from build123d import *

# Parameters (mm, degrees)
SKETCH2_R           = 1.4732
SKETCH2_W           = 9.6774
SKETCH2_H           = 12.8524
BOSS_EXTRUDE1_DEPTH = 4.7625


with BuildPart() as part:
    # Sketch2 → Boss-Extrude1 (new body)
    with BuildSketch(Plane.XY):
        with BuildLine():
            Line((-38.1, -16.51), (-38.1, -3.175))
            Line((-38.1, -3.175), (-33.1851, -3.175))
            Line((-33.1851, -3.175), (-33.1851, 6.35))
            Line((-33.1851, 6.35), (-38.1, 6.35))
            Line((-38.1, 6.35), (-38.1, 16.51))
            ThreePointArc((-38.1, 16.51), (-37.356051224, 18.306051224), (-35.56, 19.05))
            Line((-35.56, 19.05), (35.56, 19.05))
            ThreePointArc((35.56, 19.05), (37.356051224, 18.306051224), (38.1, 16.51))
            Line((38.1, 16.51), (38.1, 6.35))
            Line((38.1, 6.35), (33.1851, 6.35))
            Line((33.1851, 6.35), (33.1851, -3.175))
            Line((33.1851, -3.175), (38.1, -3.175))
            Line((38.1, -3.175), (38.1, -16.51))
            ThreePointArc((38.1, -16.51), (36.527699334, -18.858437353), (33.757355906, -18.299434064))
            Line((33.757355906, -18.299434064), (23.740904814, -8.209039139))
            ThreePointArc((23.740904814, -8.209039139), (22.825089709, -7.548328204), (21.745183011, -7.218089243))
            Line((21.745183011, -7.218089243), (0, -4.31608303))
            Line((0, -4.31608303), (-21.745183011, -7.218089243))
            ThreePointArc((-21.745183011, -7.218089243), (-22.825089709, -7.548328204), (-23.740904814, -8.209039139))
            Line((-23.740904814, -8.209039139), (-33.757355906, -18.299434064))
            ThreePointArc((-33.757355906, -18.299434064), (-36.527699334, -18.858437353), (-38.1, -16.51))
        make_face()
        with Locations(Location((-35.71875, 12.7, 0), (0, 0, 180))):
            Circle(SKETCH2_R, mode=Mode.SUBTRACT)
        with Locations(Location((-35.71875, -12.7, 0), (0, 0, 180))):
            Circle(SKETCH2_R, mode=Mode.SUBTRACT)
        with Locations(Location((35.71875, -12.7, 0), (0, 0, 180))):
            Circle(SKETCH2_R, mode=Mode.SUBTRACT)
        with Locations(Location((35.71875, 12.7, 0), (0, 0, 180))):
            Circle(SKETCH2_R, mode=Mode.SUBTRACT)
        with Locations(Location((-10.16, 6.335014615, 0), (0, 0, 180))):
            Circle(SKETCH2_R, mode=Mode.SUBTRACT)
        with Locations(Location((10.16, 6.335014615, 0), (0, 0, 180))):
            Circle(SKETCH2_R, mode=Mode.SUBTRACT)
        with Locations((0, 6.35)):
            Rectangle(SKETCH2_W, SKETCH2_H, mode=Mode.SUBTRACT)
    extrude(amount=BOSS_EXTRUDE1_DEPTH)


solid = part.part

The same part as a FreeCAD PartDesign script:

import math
import FreeCAD as App
import Part
import Sketcher
Q = App.Units.Quantity

doc = App.newDocument("Part")
body = doc.addObject("PartDesign::Body", "Body")

sketch1 = doc.addObject("Sketcher::SketchObject", "Sketch")
body.addObject(sketch1)
sketch1.AttachmentSupport = (doc.XY_Plane, [""])
sketch1.MapMode = "FlatFace"
sketch1.addGeometry(Part.LineSegment(App.Vector(-38.1, -3.2, 0), App.Vector(-38.1, -16.5, 0)), False)
sketch1.addGeometry(Part.ArcOfCircle(Part.Circle(App.Vector(-35.6, -16.5, 0), App.Vector(0, 0, 1), 2.5), math.radians(180), math.radians(315)), False)
sketch1.addGeometry(Part.LineSegment(App.Vector(-33.8, -18.3, 0), App.Vector(-23.7, -8.2, 0)), False)
sketch1.addGeometry(Part.ArcOfCircle(Part.Circle(App.Vector(-21.3, -10.6, 0), App.Vector(0, 0, 1), 3.5), math.radians(98), math.radians(135)), False)
sketch1.addGeometry(Part.LineSegment(App.Vector(-21.7, -7.2, 0), App.Vector(0, -4.3, 0)), False)
sketch1.addGeometry(Part.LineSegment(App.Vector(0, -4.3, 0), App.Vector(21.7, -7.2, 0)), False)
sketch1.addGeometry(Part.ArcOfCircle(Part.Circle(App.Vector(21.3, -10.6, 0), App.Vector(0, 0, 1), 3.5), math.radians(45), math.radians(82)), False)
sketch1.addGeometry(Part.LineSegment(App.Vector(23.7, -8.2, 0), App.Vector(33.8, -18.3, 0)), False)
sketch1.addGeometry(Part.ArcOfCircle(Part.Circle(App.Vector(35.6, -16.5, 0), App.Vector(0, 0, 1), 2.5), math.radians(-135), math.radians(0)), False)
sketch1.addGeometry(Part.LineSegment(App.Vector(38.1, -16.5, 0), App.Vector(38.1, -3.2, 0)), False)
sketch1.addGeometry(Part.LineSegment(App.Vector(38.1, -3.2, 0), App.Vector(33.2, -3.2, 0)), False)
sketch1.addGeometry(Part.LineSegment(App.Vector(33.2, -3.2, 0), App.Vector(33.2, 6.3, 0)), False)
sketch1.addGeometry(Part.LineSegment(App.Vector(33.2, 6.3, 0), App.Vector(38.1, 6.3, 0)), False)
sketch1.addGeometry(Part.LineSegment(App.Vector(38.1, 6.3, 0), App.Vector(38.1, 16.5, 0)), False)
sketch1.addGeometry(Part.ArcOfCircle(Part.Circle(App.Vector(35.6, 16.5, 0), App.Vector(0, 0, 1), 2.5), math.radians(0), math.radians(90)), False)
sketch1.addGeometry(Part.LineSegment(App.Vector(35.6, 19.1, 0), App.Vector(-35.6, 19.1, 0)), False)
sketch1.addGeometry(Part.ArcOfCircle(Part.Circle(App.Vector(-35.6, 16.5, 0), App.Vector(0, 0, 1), 2.5), math.radians(90), math.radians(180)), False)
sketch1.addGeometry(Part.LineSegment(App.Vector(-38.1, 16.5, 0), App.Vector(-38.1, 6.3, 0)), False)
sketch1.addGeometry(Part.LineSegment(App.Vector(-38.1, 6.3, 0), App.Vector(-33.2, 6.3, 0)), False)
sketch1.addGeometry(Part.LineSegment(App.Vector(-33.2, 6.3, 0), App.Vector(-33.2, -3.2, 0)), False)
sketch1.addGeometry(Part.LineSegment(App.Vector(-33.2, -3.2, 0), App.Vector(-38.1, -3.2, 0)), False)
sketch1.addGeometry(Part.Circle(App.Vector(35.7, -12.7, 0), App.Vector(0, 0, 1), 1.5), False)
sketch1.addGeometry(Part.Circle(App.Vector(-35.7, -12.7, 0), App.Vector(0, 0, 1), 1.5), False)
sketch1.addGeometry(Part.Circle(App.Vector(10.2, 6.3, 0), App.Vector(0, 0, 1), 1.5), False)
sketch1.addGeometry(Part.Circle(App.Vector(35.7, 12.7, 0), App.Vector(0, 0, 1), 1.5), False)
sketch1.addGeometry(Part.LineSegment(App.Vector(-4.8, -0.1, 0), App.Vector(-4.8, 12.8, 0)), False)
sketch1.addGeometry(Part.LineSegment(App.Vector(-4.8, 12.8, 0), App.Vector(4.8, 12.8, 0)), False)
sketch1.addGeometry(Part.LineSegment(App.Vector(4.8, 12.8, 0), App.Vector(4.8, -0.1, 0)), False)
sketch1.addGeometry(Part.LineSegment(App.Vector(4.8, -0.1, 0), App.Vector(-4.8, -0.1, 0)), False)
sketch1.addGeometry(Part.Circle(App.Vector(-10.2, 6.3, 0), App.Vector(0, 0, 1), 1.5), False)
sketch1.addGeometry(Part.Circle(App.Vector(-35.7, 12.7, 0), App.Vector(0, 0, 1), 1.5), False)
sketch1.addConstraint(Sketcher.Constraint("Tangent", 0, 2, 1, 1))
sketch1.addConstraint(Sketcher.Constraint("Tangent", 1, 2, 2, 1))
sketch1.addConstraint(Sketcher.Constraint("Tangent", 2, 2, 3, 2))
sketch1.addConstraint(Sketcher.Constraint("Tangent", 3, 1, 4, 1))
sketch1.addConstraint(Sketcher.Constraint("Coincident", 4, 2, 5, 1))
sketch1.addConstraint(Sketcher.Constraint("Tangent", 5, 2, 6, 2))
sketch1.addConstraint(Sketcher.Constraint("Tangent", 6, 1, 7, 1))
sketch1.addConstraint(Sketcher.Constraint("Tangent", 7, 2, 8, 1))
sketch1.addConstraint(Sketcher.Constraint("Tangent", 8, 2, 9, 1))
sketch1.addConstraint(Sketcher.Constraint("Coincident", 9, 2, 10, 1))
sketch1.addConstraint(Sketcher.Constraint("Coincident", 10, 2, 11, 1))
sketch1.addConstraint(Sketcher.Constraint("Coincident", 11, 2, 12, 1))
sketch1.addConstraint(Sketcher.Constraint("Coincident", 12, 2, 13, 1))
sketch1.addConstraint(Sketcher.Constraint("Tangent", 13, 2, 14, 1))
sketch1.addConstraint(Sketcher.Constraint("Tangent", 14, 2, 15, 1))
sketch1.addConstraint(Sketcher.Constraint("Tangent", 15, 2, 16, 1))
sketch1.addConstraint(Sketcher.Constraint("Tangent", 16, 2, 17, 1))
sketch1.addConstraint(Sketcher.Constraint("Coincident", 17, 2, 18, 1))
sketch1.addConstraint(Sketcher.Constraint("Coincident", 18, 2, 19, 1))
sketch1.addConstraint(Sketcher.Constraint("Coincident", 19, 2, 20, 1))
sketch1.addConstraint(Sketcher.Constraint("Coincident", 20, 2, 0, 1))
sketch1.addConstraint(Sketcher.Constraint("Coincident", 25, 2, 26, 1))
sketch1.addConstraint(Sketcher.Constraint("Coincident", 26, 2, 27, 1))
sketch1.addConstraint(Sketcher.Constraint("Coincident", 27, 2, 28, 1))
sketch1.addConstraint(Sketcher.Constraint("Coincident", 28, 2, 25, 1))
sketch1.addConstraint(Sketcher.Constraint("Vertical", 0))
sketch1.addConstraint(Sketcher.Constraint("Vertical", 9))
sketch1.addConstraint(Sketcher.Constraint("Horizontal", 10))
sketch1.addConstraint(Sketcher.Constraint("Vertical", 11))
sketch1.addConstraint(Sketcher.Constraint("Horizontal", 12))
sketch1.addConstraint(Sketcher.Constraint("Vertical", 13))
sketch1.addConstraint(Sketcher.Constraint("Horizontal", 15))
sketch1.addConstraint(Sketcher.Constraint("Vertical", 17))
sketch1.addConstraint(Sketcher.Constraint("Horizontal", 18))
sketch1.addConstraint(Sketcher.Constraint("Vertical", 19))
sketch1.addConstraint(Sketcher.Constraint("Horizontal", 20))
sketch1.addConstraint(Sketcher.Constraint("Vertical", 25))
sketch1.addConstraint(Sketcher.Constraint("Horizontal", 26))
sketch1.addConstraint(Sketcher.Constraint("Vertical", 27))
sketch1.addConstraint(Sketcher.Constraint("Horizontal", 28))
sketch1.addConstraint(Sketcher.Constraint("Equal", 3, 6))
sketch1.addConstraint(Sketcher.Constraint("Equal", 1, 8))
sketch1.addConstraint(Sketcher.Constraint("Equal", 8, 14))
sketch1.addConstraint(Sketcher.Constraint("Equal", 14, 16))
sketch1.addConstraint(Sketcher.Constraint("Equal", 21, 22))
sketch1.addConstraint(Sketcher.Constraint("Equal", 22, 23))
sketch1.addConstraint(Sketcher.Constraint("Equal", 23, 24))
sketch1.addConstraint(Sketcher.Constraint("Equal", 24, 29))
sketch1.addConstraint(Sketcher.Constraint("Equal", 29, 30))
sketch1.addConstraint(Sketcher.Constraint("Symmetric", 1, 3, 14, 3, -1, 1))
sketch1.addConstraint(Sketcher.Constraint("Symmetric", 8, 3, 16, 3, -1, 1))
sketch1.addConstraint(Sketcher.Constraint("Symmetric", 22, 3, 24, 3, -1, 1))
sketch1.addConstraint(Sketcher.Constraint("Symmetric", 21, 3, 30, 3, -1, 1))
sketch1.addConstraint(Sketcher.Constraint("Symmetric", 3, 3, 6, 3, -2))
sketch1.addConstraint(Sketcher.Constraint("Symmetric", 21, 3, 22, 3, -2))
sketch1.addConstraint(Sketcher.Constraint("Symmetric", 23, 3, 29, 3, -2))
sketch1.addConstraint(Sketcher.Constraint("Symmetric", 12, 2, 17, 2, -2))
sketch1.addConstraint(Sketcher.Constraint("Symmetric", 10, 2, 19, 2, -2))
sketch1.addConstraint(Sketcher.Constraint("PointOnObject", 4, 2, -2))
sketch1.addConstraint(Sketcher.Constraint("Radius", 1, Q("0.1 in")))
sketch1.addConstraint(Sketcher.Constraint("Diameter", 21, Q("0.116 in")))
sketch1.addConstraint(Sketcher.Constraint("DistanceX", 15, 2, 15, 1, Q("2.8 in")))
sketch1.addConstraint(Sketcher.Constraint("DistanceY", 13, 1, 13, 2, Q("0.4 in")))
sketch1.addConstraint(Sketcher.Constraint("DistanceX", 23, 3, 14, 3, Q("1 in")))
sketch1.addConstraint(Sketcher.Constraint("DistanceY", 21, 3, 24, 3, Q("1 in")))
sketch1.addConstraint(Sketcher.Constraint("DistanceY", 8, 3, 14, 3, Q("1.3 in")))
sketch1.addConstraint(Sketcher.Constraint("DistanceX", 26, 1, 26, 2, Q("0.381 in")))
sketch1.addConstraint(Sketcher.Constraint("DistanceY", 0, 2, 0, 1, Q("0.525 in")))
sketch1.addConstraint(Sketcher.Constraint("DistanceY", 25, 1, 25, 2, Q("0.506 in")))
sketch1.addConstraint(Sketcher.Constraint("DistanceX", 10, 2, 10, 1, Q("0.1935 in")))
sketch1.addConstraint(Sketcher.Constraint("DistanceX", -1, 1, 21, 3, Q("1.40625 in")))
sketch1.addConstraint(Sketcher.Constraint("DistanceY", -1, 1, 25, 2, Q("0.503 in")))
sketch1.addConstraint(Sketcher.Constraint("DistanceX", 3, 1, 3, 3, Q("0.0180002 in")))
sketch1.addConstraint(Sketcher.Constraint("DistanceX", 25, 2, -1, 1, Q("0.1905 in")))
sketch1.addConstraint(Sketcher.Constraint("Radius", 3, 3.456274))
sketch1.addConstraint(Sketcher.Constraint("DistanceX", 3, 3, -1, 1, 21.287979))
sketch1.addConstraint(Sketcher.Constraint("DistanceY", 3, 3, -1, 1, 10.64399))
sketch1.addConstraint(Sketcher.Constraint("DistanceY", -1, 1, 23, 3, 6.335015))
pad1 = doc.addObject("PartDesign::Pad", "Pad")
body.addObject(pad1)
pad1.Profile = sketch1
pad1.Length = Q("0.1875 in")

doc.recompute()
